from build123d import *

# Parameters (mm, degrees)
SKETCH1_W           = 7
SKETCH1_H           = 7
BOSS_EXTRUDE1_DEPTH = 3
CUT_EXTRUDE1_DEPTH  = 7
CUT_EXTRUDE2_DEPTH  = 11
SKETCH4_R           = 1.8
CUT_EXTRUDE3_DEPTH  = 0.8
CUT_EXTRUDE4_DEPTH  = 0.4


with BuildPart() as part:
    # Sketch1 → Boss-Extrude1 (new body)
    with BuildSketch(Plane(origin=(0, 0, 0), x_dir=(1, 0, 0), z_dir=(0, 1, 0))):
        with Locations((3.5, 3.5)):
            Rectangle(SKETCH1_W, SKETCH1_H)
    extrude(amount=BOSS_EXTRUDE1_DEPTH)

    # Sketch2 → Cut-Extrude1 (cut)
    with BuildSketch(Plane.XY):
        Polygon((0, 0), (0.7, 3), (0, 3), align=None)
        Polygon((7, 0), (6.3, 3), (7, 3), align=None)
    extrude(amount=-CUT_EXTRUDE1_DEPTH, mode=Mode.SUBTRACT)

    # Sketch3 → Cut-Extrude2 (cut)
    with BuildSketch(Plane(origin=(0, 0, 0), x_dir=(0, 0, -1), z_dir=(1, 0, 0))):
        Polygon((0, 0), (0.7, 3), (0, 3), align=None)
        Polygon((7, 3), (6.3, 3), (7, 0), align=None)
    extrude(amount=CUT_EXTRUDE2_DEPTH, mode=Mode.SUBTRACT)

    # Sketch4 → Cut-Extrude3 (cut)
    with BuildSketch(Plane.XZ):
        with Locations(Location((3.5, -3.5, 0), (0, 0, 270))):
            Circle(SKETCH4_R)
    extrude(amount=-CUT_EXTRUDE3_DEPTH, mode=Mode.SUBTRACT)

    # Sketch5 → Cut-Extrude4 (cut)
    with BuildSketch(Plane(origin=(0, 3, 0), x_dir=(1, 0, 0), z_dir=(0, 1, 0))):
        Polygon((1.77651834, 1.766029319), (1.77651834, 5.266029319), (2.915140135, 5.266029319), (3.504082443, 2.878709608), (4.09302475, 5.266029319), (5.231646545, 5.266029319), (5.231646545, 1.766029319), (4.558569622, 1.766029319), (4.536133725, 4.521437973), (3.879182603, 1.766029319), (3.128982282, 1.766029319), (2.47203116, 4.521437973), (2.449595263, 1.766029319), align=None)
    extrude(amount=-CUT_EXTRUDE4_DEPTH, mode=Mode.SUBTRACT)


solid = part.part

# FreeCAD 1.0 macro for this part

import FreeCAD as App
import Part
import Sketcher
from FreeCAD import Vector


def add_polygon(sketch, points):
    """Adds a closed chain of lines whose ends are joined by coincident constraints."""
    first, n = sketch.GeometryCount, len(points)
    for a, b in zip(points, points[1:] + points[:1]):
        sketch.addGeometry(Part.LineSegment(App.Vector(*a, 0), App.Vector(*b, 0)), False)
    for i in range(n):
        sketch.addConstraint(Sketcher.Constraint("Coincident", first + i, 2, first + (i + 1) % n, 1))

doc = App.newDocument("Part")
body = doc.addObject("PartDesign::Body", "Body")

# Sketch on XZ plane
sketch1 = body.newObject("Sketcher::SketchObject", "Sketch")
sketch1.AttachmentSupport = (doc.getObject("XZ_Plane"), [""])
sketch1.MapMode = "FlatFace"
add_polygon(sketch1, [(0, -7), (0, 0), (7, 0), (7, -7)])  # lines 0-3
sketch1.addConstraint([
    Sketcher.Constraint("Vertical", 0),
    Sketcher.Constraint("Horizontal", 1),
    Sketcher.Constraint("Vertical", 2),
    Sketcher.Constraint("Horizontal", 3),
    Sketcher.Constraint("Coincident", 0, 2, -1, 1),
    Sketcher.Constraint("Equal", 3, 0),
    Sketcher.Constraint("DistanceX", 1, 1, 1, 2, 7.0),
])
pad1 = body.newObject("PartDesign::Pad", "Pad")
pad1.Profile = sketch1
pad1.Length = 3
pad1.Reversed = True

# Sketch on XY plane
sketch2 = body.newObject("Sketcher::SketchObject", "Sketch001")
sketch2.AttachmentSupport = (doc.getObject("XY_Plane"), [""])
sketch2.MapMode = "FlatFace"
add_polygon(sketch2, [(0, 0), (0.7, 3), (0, 3)])  # lines 0-2
add_polygon(sketch2, [(6.3, 3), (7, 0), (7, 3)])  # lines 3-5
sketch2.addConstraint([
    Sketcher.Constraint("Horizontal", 1),
    Sketcher.Constraint("Vertical", 2),
    Sketcher.Constraint("Vertical", 4),
    Sketcher.Constraint("Horizontal", 5),
    Sketcher.Constraint("Coincident", 2, 2, -1, 1),
    Sketcher.Constraint("PointOnObject", 3, 2, -1),
    Sketcher.Constraint("Horizontal", 1, 2, 4, 2),
    Sketcher.Constraint("Equal", 1, 5),
    Sketcher.Constraint("DistanceY", 2, 2, 2, 1, 3.0),
    Sketcher.Constraint("DistanceX", 1, 2, 1, 1, 0.7),
    Sketcher.Constraint("DistanceX", -1, 1, 3, 2, 7.0),
])
pocket1 = body.newObject("PartDesign::Pocket", "Pocket")
pocket1.Profile = sketch2
pocket1.Length = 7

# Sketch on YZ plane
sketch3 = body.newObject("Sketcher::SketchObject", "Sketch002")
sketch3.AttachmentSupport = (doc.getObject("YZ_Plane"), [""])
sketch3.MapMode = "FlatFace"
add_polygon(sketch3, [(0, 0), (3, -0.7), (3, 0)])  # lines 0-2
add_polygon(sketch3, [(3, -7), (3, -6.3), (0, -7)])  # lines 3-5
sketch3.addConstraint([
    Sketcher.Constraint("Vertical", 1),
    Sketcher.Constraint("Horizontal", 2),
    Sketcher.Constraint("Vertical", 3),
    Sketcher.Constraint("Horizontal", 5),
    Sketcher.Constraint("Coincident", 2, 2, -1, 1),
    Sketcher.Constraint("PointOnObject", 4, 2, -2),
    Sketcher.Constraint("Vertical", 1, 2, 3, 2),
    Sketcher.Constraint("Equal", 1, 3),
    Sketcher.Constraint("DistanceX", 2, 2, 2, 1, 3.0),
    Sketcher.Constraint("DistanceY", 1, 1, 1, 2, 0.7),
    Sketcher.Constraint("DistanceY", 4, 2, -1, 1, 7.0),
])
pocket2 = body.newObject("PartDesign::Pocket", "Pocket001")
pocket2.Profile = sketch3
pocket2.Length = 11
pocket2.Reversed = True

# Sketch on XZ plane
sketch4 = body.newObject("Sketcher::SketchObject", "Sketch003")
sketch4.AttachmentSupport = (doc.getObject("XZ_Plane"), [""])
sketch4.MapMode = "FlatFace"
sketch4.addGeometry(Part.Circle(Vector(3.5, -3.5, 0), Vector(0, 0, 1), 1.8), False)
sketch4.addConstraint([
    Sketcher.Constraint("Diameter", 0, 3.6),
    Sketcher.Constraint("DistanceX", -1, 1, 0, 3, 3.5),
    Sketcher.Constraint("DistanceY", 0, 3, -1, 1, 3.5),
])
pocket3 = body.newObject("PartDesign::Pocket", "Pocket002")
pocket3.Profile = sketch4
pocket3.Length = 0.8

# Sketch on XZ plane
sketch5 = body.newObject("Sketcher::SketchObject", "Sketch004")
sketch5.AttachmentSupport = (doc.getObject("XZ_Plane"), [""])
sketch5.MapMode = "FlatFace"
sketch5.AttachmentOffset = App.Placement(Vector(0, 0, -3), App.Rotation())
add_polygon(sketch5, [(1.8, -5.3), (1.8, -1.8), (2.4, -1.8), (2.5, -4.5), (3.1, -1.8), (3.9, -1.8), (4.5, -4.5), (4.6, -1.8), (5.2, -1.8), (5.2, -5.3), (4.1, -5.3), (3.5, -2.9), (2.9, -5.3)])  # lines 0-12
sketch5.addConstraint([
    Sketcher.Constraint("Vertical", 0),
    Sketcher.Constraint("Horizontal", 1),
    Sketcher.Constraint("Horizontal", 4),
    Sketcher.Constraint("Horizontal", 7),
    Sketcher.Constraint("Vertical", 8),
    Sketcher.Constraint("Horizontal", 9),
    Sketcher.Constraint("Horizontal", 12),
    Sketcher.Constraint("Horizontal", 1, 2, 3, 2),
    Sketcher.Constraint("Horizontal", 2, 2, 5, 2),
    Sketcher.Constraint("Horizontal", 4, 2, 6, 2),
    Sketcher.Constraint("Horizontal", 9, 2, 11, 2),
    Sketcher.Constraint("Equal", 1, 7),
    Sketcher.Constraint("Equal", 9, 12),
    Sketcher.Constraint("Equal", 3, 5),
    Sketcher.Constraint("Equal", 2, 6),
    Sketcher.Constraint("Equal", 10, 11),
    Sketcher.Constraint("DistanceY", 0, 1, 0, 2, 3.5),
    Sketcher.Constraint("DistanceX", 4, 1, 4, 2, 0.7502),
    Sketcher.Constraint("Distance", 2, 2.7555),
    Sketcher.Constraint("DistanceX", 9, 2, 9, 1, 1.138622),
    Sketcher.Constraint("Distance", 10, 2.458892),
    Sketcher.Constraint("DistanceX", 1, 1, 1, 2, 0.673077),
    Sketcher.Constraint("DistanceX", -1, 1, 0, 2, 1.776518),
    Sketcher.Constraint("DistanceY", 0, 2, -1, 1, 1.766029),
    Sketcher.Constraint("DistanceX", -1, 1, 2, 2, 2.472031),
    Sketcher.Constraint("DistanceX", -1, 1, 6, 2, 4.55857),
])
pocket4 = body.newObject("PartDesign::Pocket", "Pocket003")
pocket4.Profile = sketch5
pocket4.Length = 0.4
pocket4.Reversed = True

doc.recompute()
